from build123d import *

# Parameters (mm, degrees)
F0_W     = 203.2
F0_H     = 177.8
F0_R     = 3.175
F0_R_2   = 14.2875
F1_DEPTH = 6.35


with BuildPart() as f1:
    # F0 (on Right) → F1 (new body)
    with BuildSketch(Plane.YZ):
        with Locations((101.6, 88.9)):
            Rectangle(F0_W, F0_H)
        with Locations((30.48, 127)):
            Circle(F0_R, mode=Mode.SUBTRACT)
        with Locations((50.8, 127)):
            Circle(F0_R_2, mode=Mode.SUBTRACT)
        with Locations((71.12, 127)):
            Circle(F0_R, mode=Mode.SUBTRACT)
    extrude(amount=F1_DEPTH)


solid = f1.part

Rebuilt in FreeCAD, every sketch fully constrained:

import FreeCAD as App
import Part
import Sketcher
Q = App.Units.Quantity


def add_polygon(sketch, points):
    """Adds a closed chain of lines whose ends are joined by coincident constraints."""
    first, n = sketch.GeometryCount, len(points)
    for a, b in zip(points, points[1:] + points[:1]):
        sketch.addGeometry(Part.LineSegment(App.Vector(*a, 0), App.Vector(*b, 0)), False)
    for i in range(n):
        sketch.addConstraint(Sketcher.Constraint("Coincident", first + i, 2, first + (i + 1) % n, 1))

doc = App.newDocument("Part")
params = doc.addObject("Spreadsheet::Sheet", "Params")
for row, (alias, value) in enumerate([
    ("sketch1_diameter", "0.25 in"),
    ("sketch1_width", "8 in"),
    ("sketch1_height", "7 in"),
    ("sketch1_diameter2", "1.125 in"),
    ("pad1_length", "0.25 in"),
], start=1):
    params.set(f"A{row}", alias)
    params.set(f"B{row}", "=" + value)
    params.setAlias(f"B{row}", alias)

body = doc.addObject("PartDesign::Body", "Body")

sketch1 = body.newObject("Sketcher::SketchObject", "Sketch")
sketch1.AttachmentSupport = (doc.getObject("YZ_Plane"), [""])
sketch1.MapMode = "FlatFace"
add_polygon(sketch1, [(0, 177.8), (0, 0), (203.2, 0), (203.2, 177.8)])
sketch1.addGeometry(Part.Circle(App.Vector(30.5, 127, 0), App.Vector(0, 0, 1), 3.2), False)
sketch1.addGeometry(Part.Circle(App.Vector(50.8, 127, 0), App.Vector(0, 0, 1), 14.3), False)
sketch1.addGeometry(Part.Circle(App.Vector(71.1, 127, 0), App.Vector(0, 0, 1), 3.2), False)
sketch1.addConstraint([
    Sketcher.Constraint("Vertical", 0),
    Sketcher.Constraint("Horizontal", 1),
    Sketcher.Constraint("Vertical", 2),
    Sketcher.Constraint("Horizontal", 3),
    Sketcher.Constraint("Coincident", 0, 2, -1, 1),
    Sketcher.Constraint("Equal", 4, 6),
    Sketcher.Constraint("Horizontal", 4, 3, 5, 3),
    Sketcher.Constraint("Horizontal", 5, 3, 6, 3),
    Sketcher.Constraint("Diameter", 4, Q("0.25 in")),
    Sketcher.Constraint("DistanceX", 1, 1, 1, 2, Q("8 in")),
    Sketcher.Constraint("DistanceY", 0, 2, 0, 1, Q("7 in")),
    Sketcher.Constraint("Diameter", 5, Q("1.125 in")),
    Sketcher.Constraint("DistanceY", -1, 1, 4, 3, Q("5 in")),
    Sketcher.Constraint("DistanceX", -1, 1, 5, 3, Q("2 in")),
    Sketcher.Constraint("DistanceX", -1, 1, 4, 3, Q("1.2 in")),
    Sketcher.Constraint("DistanceX", -1, 1, 6, 3, Q("2.8 in")),
])
sketch1.setExpression("Constraints[12]", "Params.sketch1_diameter")
sketch1.setExpression("Constraints[13]", "Params.sketch1_width")
sketch1.setExpression("Constraints[14]", "Params.sketch1_height")
sketch1.setExpression("Constraints[15]", "Params.sketch1_diameter2")
pad1 = body.newObject("PartDesign::Pad", "Pad")
pad1.Profile = sketch1
pad1.setExpression("Length", "Params.pad1_length")

doc.recompute()
